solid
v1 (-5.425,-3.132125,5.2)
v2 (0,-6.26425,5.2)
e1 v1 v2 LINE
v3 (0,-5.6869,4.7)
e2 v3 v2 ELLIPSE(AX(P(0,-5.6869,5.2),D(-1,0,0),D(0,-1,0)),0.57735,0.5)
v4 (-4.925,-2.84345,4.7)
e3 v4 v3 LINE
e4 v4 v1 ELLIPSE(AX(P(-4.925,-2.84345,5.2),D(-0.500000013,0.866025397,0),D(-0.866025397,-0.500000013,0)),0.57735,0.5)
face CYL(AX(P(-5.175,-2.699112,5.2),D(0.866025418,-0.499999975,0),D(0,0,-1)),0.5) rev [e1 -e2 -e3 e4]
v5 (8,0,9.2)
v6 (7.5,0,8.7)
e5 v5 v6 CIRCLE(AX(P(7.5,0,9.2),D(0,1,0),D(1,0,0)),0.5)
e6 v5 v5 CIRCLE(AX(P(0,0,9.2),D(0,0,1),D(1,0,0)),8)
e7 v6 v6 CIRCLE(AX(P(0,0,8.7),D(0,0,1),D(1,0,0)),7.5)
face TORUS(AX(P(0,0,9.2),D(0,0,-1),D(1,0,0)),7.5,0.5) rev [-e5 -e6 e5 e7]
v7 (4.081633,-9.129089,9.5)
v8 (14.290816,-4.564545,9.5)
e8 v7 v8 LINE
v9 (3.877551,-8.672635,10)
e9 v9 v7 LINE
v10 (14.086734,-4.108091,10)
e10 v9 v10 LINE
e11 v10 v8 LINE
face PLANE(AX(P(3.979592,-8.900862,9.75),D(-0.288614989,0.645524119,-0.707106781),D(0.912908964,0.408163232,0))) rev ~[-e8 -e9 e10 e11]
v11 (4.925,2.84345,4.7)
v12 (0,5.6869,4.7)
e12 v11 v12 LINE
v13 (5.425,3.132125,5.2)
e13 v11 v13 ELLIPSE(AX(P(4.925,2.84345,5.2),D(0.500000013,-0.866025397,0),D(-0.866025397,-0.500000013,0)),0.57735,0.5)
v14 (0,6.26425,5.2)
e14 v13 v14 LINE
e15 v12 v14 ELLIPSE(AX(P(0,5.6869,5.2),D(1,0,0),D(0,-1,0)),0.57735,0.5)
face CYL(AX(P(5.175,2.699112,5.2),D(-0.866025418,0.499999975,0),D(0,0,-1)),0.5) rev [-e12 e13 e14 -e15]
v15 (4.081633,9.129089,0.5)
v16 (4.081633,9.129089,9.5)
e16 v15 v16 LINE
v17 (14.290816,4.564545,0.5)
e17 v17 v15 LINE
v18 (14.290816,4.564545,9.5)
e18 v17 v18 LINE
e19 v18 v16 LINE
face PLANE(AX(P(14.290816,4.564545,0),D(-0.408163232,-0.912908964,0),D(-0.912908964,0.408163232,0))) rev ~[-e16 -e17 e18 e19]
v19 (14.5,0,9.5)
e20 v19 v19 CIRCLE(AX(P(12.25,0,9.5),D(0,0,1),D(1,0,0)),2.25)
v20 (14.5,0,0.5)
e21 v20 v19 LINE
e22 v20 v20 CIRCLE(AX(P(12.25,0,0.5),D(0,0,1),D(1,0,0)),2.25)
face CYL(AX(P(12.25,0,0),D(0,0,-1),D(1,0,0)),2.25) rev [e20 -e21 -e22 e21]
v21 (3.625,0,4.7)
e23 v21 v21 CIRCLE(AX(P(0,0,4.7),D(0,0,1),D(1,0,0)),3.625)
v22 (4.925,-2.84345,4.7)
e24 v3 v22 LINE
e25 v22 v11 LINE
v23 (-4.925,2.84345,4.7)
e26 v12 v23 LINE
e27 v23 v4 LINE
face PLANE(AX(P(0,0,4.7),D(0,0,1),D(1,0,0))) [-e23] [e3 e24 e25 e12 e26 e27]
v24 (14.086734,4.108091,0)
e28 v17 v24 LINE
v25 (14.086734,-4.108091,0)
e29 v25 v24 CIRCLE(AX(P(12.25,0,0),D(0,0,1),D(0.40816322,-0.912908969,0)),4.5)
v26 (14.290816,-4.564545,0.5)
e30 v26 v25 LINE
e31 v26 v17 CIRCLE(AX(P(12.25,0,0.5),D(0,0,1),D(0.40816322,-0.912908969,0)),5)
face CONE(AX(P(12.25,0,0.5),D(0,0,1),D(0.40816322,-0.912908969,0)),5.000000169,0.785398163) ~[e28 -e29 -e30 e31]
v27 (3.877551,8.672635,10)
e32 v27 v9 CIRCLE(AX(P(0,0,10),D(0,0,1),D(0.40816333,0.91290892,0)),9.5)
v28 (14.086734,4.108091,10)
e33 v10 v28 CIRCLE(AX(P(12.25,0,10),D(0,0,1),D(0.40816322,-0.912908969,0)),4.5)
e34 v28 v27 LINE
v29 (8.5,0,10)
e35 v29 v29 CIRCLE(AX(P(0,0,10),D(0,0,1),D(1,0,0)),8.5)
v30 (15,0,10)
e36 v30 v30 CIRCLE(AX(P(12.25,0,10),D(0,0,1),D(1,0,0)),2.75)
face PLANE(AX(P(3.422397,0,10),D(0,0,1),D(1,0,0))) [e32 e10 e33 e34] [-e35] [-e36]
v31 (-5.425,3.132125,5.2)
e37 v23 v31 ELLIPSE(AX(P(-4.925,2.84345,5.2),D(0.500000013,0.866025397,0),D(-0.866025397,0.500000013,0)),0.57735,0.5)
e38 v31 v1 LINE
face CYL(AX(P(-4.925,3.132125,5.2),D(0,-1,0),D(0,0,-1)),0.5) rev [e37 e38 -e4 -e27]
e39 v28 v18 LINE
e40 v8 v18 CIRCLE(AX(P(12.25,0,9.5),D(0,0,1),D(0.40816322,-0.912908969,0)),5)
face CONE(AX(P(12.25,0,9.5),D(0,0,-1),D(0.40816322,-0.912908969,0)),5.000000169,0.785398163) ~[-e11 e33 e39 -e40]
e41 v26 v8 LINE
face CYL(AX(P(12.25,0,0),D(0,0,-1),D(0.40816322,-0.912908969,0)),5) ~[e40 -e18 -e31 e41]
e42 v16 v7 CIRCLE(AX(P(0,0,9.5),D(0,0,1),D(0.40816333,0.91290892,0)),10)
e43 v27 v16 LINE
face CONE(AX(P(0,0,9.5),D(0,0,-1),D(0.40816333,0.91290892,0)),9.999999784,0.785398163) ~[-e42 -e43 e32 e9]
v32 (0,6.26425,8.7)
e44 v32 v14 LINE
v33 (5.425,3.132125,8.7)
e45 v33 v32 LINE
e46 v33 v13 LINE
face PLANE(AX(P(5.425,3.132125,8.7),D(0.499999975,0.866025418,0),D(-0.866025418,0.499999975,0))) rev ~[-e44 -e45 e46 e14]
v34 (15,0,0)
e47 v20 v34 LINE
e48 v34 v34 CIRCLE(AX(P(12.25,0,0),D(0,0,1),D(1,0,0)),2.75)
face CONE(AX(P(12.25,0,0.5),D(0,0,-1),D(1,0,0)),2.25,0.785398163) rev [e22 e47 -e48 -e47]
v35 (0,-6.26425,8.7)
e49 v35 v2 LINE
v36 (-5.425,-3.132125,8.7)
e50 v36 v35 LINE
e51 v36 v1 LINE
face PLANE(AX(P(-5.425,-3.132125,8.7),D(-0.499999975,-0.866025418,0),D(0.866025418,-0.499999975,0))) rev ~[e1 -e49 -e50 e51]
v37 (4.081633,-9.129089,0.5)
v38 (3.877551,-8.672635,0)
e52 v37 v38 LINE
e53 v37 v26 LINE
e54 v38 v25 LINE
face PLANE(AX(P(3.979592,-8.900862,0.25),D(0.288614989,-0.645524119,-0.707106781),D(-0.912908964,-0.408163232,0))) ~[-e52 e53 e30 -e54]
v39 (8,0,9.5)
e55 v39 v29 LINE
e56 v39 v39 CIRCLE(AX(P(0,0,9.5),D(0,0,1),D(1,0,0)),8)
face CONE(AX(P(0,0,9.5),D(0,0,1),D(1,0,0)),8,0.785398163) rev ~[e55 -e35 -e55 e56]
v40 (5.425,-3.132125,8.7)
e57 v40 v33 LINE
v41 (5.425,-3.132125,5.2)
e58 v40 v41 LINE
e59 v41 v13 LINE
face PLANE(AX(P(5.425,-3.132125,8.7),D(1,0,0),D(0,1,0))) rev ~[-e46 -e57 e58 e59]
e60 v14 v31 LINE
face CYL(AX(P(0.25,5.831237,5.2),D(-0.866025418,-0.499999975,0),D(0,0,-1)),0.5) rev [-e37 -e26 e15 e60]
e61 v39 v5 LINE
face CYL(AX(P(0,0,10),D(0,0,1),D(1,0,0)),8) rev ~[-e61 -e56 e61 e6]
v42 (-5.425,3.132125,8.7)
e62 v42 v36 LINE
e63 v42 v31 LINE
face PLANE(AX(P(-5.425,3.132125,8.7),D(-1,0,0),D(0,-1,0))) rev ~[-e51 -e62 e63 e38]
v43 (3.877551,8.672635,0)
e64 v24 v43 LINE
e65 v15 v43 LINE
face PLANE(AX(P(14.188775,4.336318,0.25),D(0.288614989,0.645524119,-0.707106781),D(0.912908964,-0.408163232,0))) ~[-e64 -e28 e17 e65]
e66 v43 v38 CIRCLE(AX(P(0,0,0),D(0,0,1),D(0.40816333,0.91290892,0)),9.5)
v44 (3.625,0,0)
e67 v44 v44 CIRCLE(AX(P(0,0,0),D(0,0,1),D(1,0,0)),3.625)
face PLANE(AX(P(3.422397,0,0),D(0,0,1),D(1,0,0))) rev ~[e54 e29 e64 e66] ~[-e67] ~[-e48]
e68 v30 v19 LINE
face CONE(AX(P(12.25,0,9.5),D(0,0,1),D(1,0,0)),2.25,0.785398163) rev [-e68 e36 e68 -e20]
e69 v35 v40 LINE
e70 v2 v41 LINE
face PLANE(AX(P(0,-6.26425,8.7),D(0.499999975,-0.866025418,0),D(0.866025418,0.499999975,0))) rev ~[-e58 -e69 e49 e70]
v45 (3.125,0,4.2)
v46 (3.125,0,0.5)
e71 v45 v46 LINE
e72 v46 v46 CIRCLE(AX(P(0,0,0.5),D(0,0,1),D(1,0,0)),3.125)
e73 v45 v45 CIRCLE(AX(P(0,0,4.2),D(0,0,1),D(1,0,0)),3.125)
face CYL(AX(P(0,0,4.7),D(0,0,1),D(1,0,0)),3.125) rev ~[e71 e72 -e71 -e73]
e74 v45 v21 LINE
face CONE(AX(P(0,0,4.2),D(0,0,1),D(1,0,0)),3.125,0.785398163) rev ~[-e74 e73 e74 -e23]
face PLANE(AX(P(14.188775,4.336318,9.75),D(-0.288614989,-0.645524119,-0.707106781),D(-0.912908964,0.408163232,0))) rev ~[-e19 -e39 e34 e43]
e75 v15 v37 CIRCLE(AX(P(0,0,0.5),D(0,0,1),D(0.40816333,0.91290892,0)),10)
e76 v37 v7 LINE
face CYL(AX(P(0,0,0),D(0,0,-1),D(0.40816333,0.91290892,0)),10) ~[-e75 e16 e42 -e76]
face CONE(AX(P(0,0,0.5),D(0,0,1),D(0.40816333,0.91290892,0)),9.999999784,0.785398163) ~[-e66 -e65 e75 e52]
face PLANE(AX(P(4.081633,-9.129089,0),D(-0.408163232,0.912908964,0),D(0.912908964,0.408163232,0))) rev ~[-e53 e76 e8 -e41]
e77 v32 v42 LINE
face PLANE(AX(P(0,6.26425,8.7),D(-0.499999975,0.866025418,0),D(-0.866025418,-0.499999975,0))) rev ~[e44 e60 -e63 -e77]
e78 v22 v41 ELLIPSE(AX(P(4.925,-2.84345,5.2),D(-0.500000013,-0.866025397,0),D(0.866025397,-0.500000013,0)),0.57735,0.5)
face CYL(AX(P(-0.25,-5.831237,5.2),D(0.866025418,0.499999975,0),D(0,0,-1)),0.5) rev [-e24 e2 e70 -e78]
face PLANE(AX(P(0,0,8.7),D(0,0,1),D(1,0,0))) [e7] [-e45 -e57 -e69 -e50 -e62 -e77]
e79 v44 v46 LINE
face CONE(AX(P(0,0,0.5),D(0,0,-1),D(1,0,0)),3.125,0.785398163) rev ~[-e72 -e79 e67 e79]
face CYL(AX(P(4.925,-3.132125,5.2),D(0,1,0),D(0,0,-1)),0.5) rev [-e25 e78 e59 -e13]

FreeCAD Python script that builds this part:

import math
import FreeCAD as App
import Part
import Sketcher
Q = App.Units.Quantity


def edges_at(feature, points):
    """Names of the edges that pass closest to the given points."""
    edges = feature.Shape.Edges
    near = lambda p: min(range(len(edges)), key=lambda i: edges[i].distToShape(Part.Vertex(*p))[0])
    return sorted({f"Edge{near(p) + 1}" for p in points})


def add_polygon(sketch, points):
    """Adds a closed chain of lines whose ends are joined by coincident constraints."""
    first, n = sketch.GeometryCount, len(points)
    for a, b in zip(points, points[1:] + points[:1]):
        sketch.addGeometry(Part.LineSegment(App.Vector(*a, 0), App.Vector(*b, 0)), False)
    for i in range(n):
        sketch.addConstraint(Sketcher.Constraint("Coincident", first + i, 2, first + (i + 1) % n, 1))

doc = App.newDocument("Part")
body = doc.addObject("PartDesign::Body", "Body")

# Sketch on XY plane
sketch1 = body.newObject("Sketcher::SketchObject", "Sketch")
sketch1.AttachmentSupport = (doc.getObject("XY_Plane"), [""])
sketch1.MapMode = "FlatFace"
sketch1.addGeometry(Part.LineSegment(App.Vector(14.3, 4.6, 0), App.Vector(4.1, 9.1, 0)), False)
sketch1.addGeometry(Part.ArcOfCircle(Part.Circle(App.Vector(0, 0, 0), App.Vector(0, 0, 1), 10), math.radians(66), math.radians(294)), False)
sketch1.addGeometry(Part.LineSegment(App.Vector(4.1, -9.1, 0), App.Vector(14.3, -4.6, 0)), False)
sketch1.addGeometry(Part.ArcOfCircle(Part.Circle(App.Vector(12.2, 0, 0), App.Vector(0, 0, 1), 5), math.radians(-66), math.radians(66)), False)
sketch1.addGeometry(Part.Circle(App.Vector(12.2, 0, 0), App.Vector(0, 0, 1), 2.2), False)
sketch1.addConstraint(Sketcher.Constraint("Tangent", 0, 2, 1, 1))
sketch1.addConstraint(Sketcher.Constraint("Tangent", 1, 2, 2, 1))
sketch1.addConstraint(Sketcher.Constraint("Tangent", 2, 2, 3, 1))
sketch1.addConstraint(Sketcher.Constraint("Tangent", 3, 2, 0, 1))
sketch1.addConstraint(Sketcher.Constraint("Coincident", 1, 3, -1, 1))
sketch1.addConstraint(Sketcher.Constraint("Coincident", 4, 3, 3, 3))
sketch1.addConstraint(Sketcher.Constraint("PointOnObject", 3, 3, -1))
sketch1.addConstraint(Sketcher.Constraint("Radius", 1, 10.0))
sketch1.addConstraint(Sketcher.Constraint("Radius", 3, 5.0))
sketch1.addConstraint(Sketcher.Constraint("Diameter", 4, 4.5))
sketch1.addConstraint(Sketcher.Constraint("DistanceX", -1, 1, 3, 3, 12.25))
pad1 = body.newObject("PartDesign::Pad", "Pad")
pad1.Profile = sketch1
pad1.Length = 10

# Sketch on XY plane
sketch2 = body.newObject("Sketcher::SketchObject", "Sketch001")
sketch2.AttachmentSupport = (doc.getObject("XY_Plane"), [""])
sketch2.MapMode = "FlatFace"
sketch2.AttachmentOffset = App.Placement(App.Vector(0, 0, 10), App.Rotation())
sketch2.addGeometry(Part.Circle(App.Vector(0, 0, 0), App.Vector(0, 0, 1), 8), False)
sketch2.addConstraint(Sketcher.Constraint("Coincident", 0, 3, -1, 1))
sketch2.addConstraint(Sketcher.Constraint("Diameter", 0, 16.0))
pocket1 = body.newObject("PartDesign::Pocket", "Pocket")
pocket1.Profile = sketch2
pocket1.Length = 1.3

# Sketch on XY plane
sketch3 = body.newObject("Sketcher::SketchObject", "Sketch002")
sketch3.AttachmentSupport = (doc.getObject("XY_Plane"), [""])
sketch3.MapMode = "FlatFace"
sketch3.AttachmentOffset = App.Placement(App.Vector(0, 0, 8.7), App.Rotation())
add_polygon(sketch3, [(5, -3), (5, 3), (0, 6), (-5, 3), (-5, -3), (0, -6)])  # lines 0-5
sketch3.addConstraint(Sketcher.Constraint("Vertical", 0))
sketch3.addConstraint(Sketcher.Constraint("Vertical", 3))
sketch3.addConstraint(Sketcher.Constraint("Symmetric", 0, 2, 3, 2, -1, 1))
sketch3.addConstraint(Sketcher.Constraint("Symmetric", 1, 2, 4, 2, -1, 1))
sketch3.addConstraint(Sketcher.Constraint("PointOnObject", 1, 2, -2))
sketch3.addConstraint(Sketcher.Constraint("Parallel", 2, 5))
sketch3.addConstraint(Sketcher.Constraint("Horizontal", 0, 2, 2, 2))
sketch3.addConstraint(Sketcher.Constraint("Angle", 1, Q("150.000002 deg")))
sketch3.addConstraint(Sketcher.Constraint("DistanceX", 2, 2, 0, 2, 10.85))
sketch3.addConstraint(Sketcher.Constraint("DistanceY", 0, 1, 0, 2, 6.26425))
pocket2 = body.newObject("PartDesign::Pocket", "Pocket001")
pocket2.Profile = sketch3
pocket2.Length = 4

# Sketch on XY plane
sketch4 = body.newObject("Sketcher::SketchObject", "Sketch003")
sketch4.AttachmentSupport = (doc.getObject("XY_Plane"), [""])
sketch4.MapMode = "FlatFace"
sketch4.AttachmentOffset = App.Placement(App.Vector(0, 0, 4.7), App.Rotation())
sketch4.addGeometry(Part.Circle(App.Vector(0, 0, 0), App.Vector(0, 0, 1), 3.1), False)
sketch4.addConstraint(Sketcher.Constraint("Coincident", 0, 3, -1, 1))
sketch4.addConstraint(Sketcher.Constraint("Diameter", 0, 6.25))
pocket3 = body.newObject("PartDesign::Pocket", "Pocket002")
pocket3.Profile = sketch4
pocket3.Type = "ThroughAll"
doc.recompute()

fillet = body.newObject("PartDesign::Fillet", "Fillet")
fillet.Base = (pocket3, edges_at(pocket3, [
    (-8, 0, 8.7),
    (-2.712, 4.698, 4.7),
    (2.712, 4.698, 4.7),
    (-5.425, 0, 4.7),
    (-2.712, -4.698, 4.7),
    (2.712, -4.698, 4.7),
    (5.425, 0, 4.7),
]))
fillet.Radius = 0.5
doc.recompute()

chamfer = body.newObject("PartDesign::Chamfer", "Chamfer")
chamfer.Base = (fillet, edges_at(fillet, [
    (-8, 0, 10),
    (10, 0, 10),
    (-10, 0, 10),
    (9.186, -6.847, 10),
    (-10, 0, 0),
    (9.186, 6.847, 0),
    (-3.125, 0, 0),
    (10, 0, 0),
    (-3.125, 0, 4.7),
]))
chamfer.Size = 0.5

doc.recompute()
